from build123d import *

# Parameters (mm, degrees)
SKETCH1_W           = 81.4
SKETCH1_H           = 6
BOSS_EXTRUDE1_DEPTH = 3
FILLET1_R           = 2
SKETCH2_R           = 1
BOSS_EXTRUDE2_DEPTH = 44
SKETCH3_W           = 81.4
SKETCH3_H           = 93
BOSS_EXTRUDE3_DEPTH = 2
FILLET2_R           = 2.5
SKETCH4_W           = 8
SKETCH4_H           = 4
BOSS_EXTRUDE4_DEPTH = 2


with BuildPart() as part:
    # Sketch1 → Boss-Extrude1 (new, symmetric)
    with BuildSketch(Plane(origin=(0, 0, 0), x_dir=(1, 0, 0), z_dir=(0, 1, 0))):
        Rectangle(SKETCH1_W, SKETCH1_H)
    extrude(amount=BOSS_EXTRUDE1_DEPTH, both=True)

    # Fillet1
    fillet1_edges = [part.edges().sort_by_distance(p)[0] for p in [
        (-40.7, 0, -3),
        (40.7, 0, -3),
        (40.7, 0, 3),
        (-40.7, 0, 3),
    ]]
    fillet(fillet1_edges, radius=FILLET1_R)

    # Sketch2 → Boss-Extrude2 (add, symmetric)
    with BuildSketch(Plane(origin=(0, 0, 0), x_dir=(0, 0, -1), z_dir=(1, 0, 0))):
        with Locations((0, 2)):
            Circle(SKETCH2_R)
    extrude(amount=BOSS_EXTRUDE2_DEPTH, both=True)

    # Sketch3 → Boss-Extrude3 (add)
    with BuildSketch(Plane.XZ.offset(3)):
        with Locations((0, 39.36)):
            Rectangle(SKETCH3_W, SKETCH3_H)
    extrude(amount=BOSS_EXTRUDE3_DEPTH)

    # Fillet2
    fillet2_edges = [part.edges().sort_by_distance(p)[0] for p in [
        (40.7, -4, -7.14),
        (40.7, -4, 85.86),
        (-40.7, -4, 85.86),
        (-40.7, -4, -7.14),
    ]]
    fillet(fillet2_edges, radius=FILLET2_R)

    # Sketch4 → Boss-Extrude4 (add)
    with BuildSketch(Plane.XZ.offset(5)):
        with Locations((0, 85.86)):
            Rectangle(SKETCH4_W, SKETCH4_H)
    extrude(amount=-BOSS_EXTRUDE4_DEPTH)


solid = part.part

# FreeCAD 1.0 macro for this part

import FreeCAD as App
import Part
import Sketcher

V = App.Vector
Q = App.Units.Quantity


def edges_at(feature, points):
    """Names of the edges that pass closest to the given points."""
    edges = feature.Shape.Edges
    near = lambda p: min(range(len(edges)), key=lambda i: edges[i].distToShape(Part.Vertex(*p))[0])
    return sorted({f"Edge{near(p) + 1}" for p in points})


def add_polygon(sketch, points):
    """Adds a closed chain of lines whose ends are joined by coincident constraints."""
    first, n = sketch.GeometryCount, len(points)
    for a, b in zip(points, points[1:] + points[:1]):
        sketch.addGeometry(Part.LineSegment(App.Vector(*a, 0), App.Vector(*b, 0)), False)
    for i in range(n):
        sketch.addConstraint(Sketcher.Constraint("Coincident", first + i, 2, first + (i + 1) % n, 1))

doc = App.newDocument("Part")
body = doc.addObject("PartDesign::Body", "Body")

sketch1 = body.newObject("Sketcher::SketchObject", "Sketch")
sketch1.AttachmentSupport = (doc.getObject("XZ_Plane"), [""])
sketch1.MapMode = "FlatFace"
add_polygon(sketch1, [(-41, -3), (-41, 3), (41, 3), (41, -3)])
sketch1.addConstraint(Sketcher.Constraint("Vertical", 0))
sketch1.addConstraint(Sketcher.Constraint("Horizontal", 1))
sketch1.addConstraint(Sketcher.Constraint("Vertical", 2))
sketch1.addConstraint(Sketcher.Constraint("Horizontal", 3))
sketch1.addConstraint(Sketcher.Constraint("Symmetric", 0, 2, 2, 2, -1, 1))
sketch1.addConstraint(Sketcher.Constraint("DistanceY", 0, 1, 0, 2, Q("6 mm")))
sketch1.addConstraint(Sketcher.Constraint("DistanceX", 1, 1, 1, 2, Q("81.4 mm")))
pad1 = body.newObject("PartDesign::Pad", "Pad")
pad1.Profile = sketch1
pad1.Length = 6
pad1.Midplane = True
doc.recompute()

fillet = body.newObject("PartDesign::Fillet", "Fillet")
fillet.Base = (pad1, edges_at(pad1, [
    (-40.7, 0, -3),
    (40.7, 0, -3),
    (40.7, 0, 3),
    (-40.7, 0, 3),
]))
fillet.Radius = 2

sketch2 = body.newObject("Sketcher::SketchObject", "Sketch001")
sketch2.AttachmentSupport = (doc.getObject("YZ_Plane"), [""])
sketch2.MapMode = "FlatFace"
sketch2.addGeometry(Part.Circle(V(2, 0, 0), V(0, 0, 1), 1), False)
sketch2.addConstraint(Sketcher.Constraint("PointOnObject", 0, 3, -1))
sketch2.addConstraint(Sketcher.Constraint("Diameter", 0, Q("2 mm")))
sketch2.addConstraint(Sketcher.Constraint("DistanceX", -1, 1, 0, 3, Q("2 mm")))
pad2 = body.newObject("PartDesign::Pad", "Pad001")
pad2.Profile = sketch2
pad2.Length = 88
pad2.Midplane = True

sketch3 = body.newObject("Sketcher::SketchObject", "Sketch002")
sketch3.AttachmentSupport = (doc.getObject("XZ_Plane"), [""])
sketch3.MapMode = "FlatFace"
sketch3.AttachmentOffset = App.Placement(V(0, 0, 3), App.Rotation())
add_polygon(sketch3, [(-41, 86), (-41, -7), (41, -7), (41, 86)])
sketch3.addConstraint(Sketcher.Constraint("Vertical", 0))
sketch3.addConstraint(Sketcher.Constraint("Horizontal", 1))
sketch3.addConstraint(Sketcher.Constraint("Vertical", 2))
sketch3.addConstraint(Sketcher.Constraint("Horizontal", 3))
sketch3.addConstraint(Sketcher.Constraint("DistanceY", 0, 2, 0, 1, Q("93 mm")))
sketch3.addConstraint(Sketcher.Constraint("DistanceX", 1, 1, 1, 2, Q("81.4 mm")))
sketch3.addConstraint(Sketcher.Constraint("DistanceX", 0, 2, -1, 1, Q("40.7 mm")))
sketch3.addConstraint(Sketcher.Constraint("DistanceY", 0, 2, -1, 1, Q("7.14 mm")))
pad3 = body.newObject("PartDesign::Pad", "Pad002")
pad3.Profile = sketch3
pad3.Length = 2
doc.recompute()

fillet2 = body.newObject("PartDesign::Fillet", "Fillet001")
fillet2.Base = (pad3, edges_at(pad3, [
    (40.7, -4, -7.14),
    (40.7, -4, 85.86),
    (-40.7, -4, 85.86),
    (-40.7, -4, -7.14),
]))
fillet2.Radius = 2.5

sketch4 = body.newObject("Sketcher::SketchObject", "Sketch003")
sketch4.AttachmentSupport = (doc.getObject("XZ_Plane"), [""])
sketch4.MapMode = "FlatFace"
sketch4.AttachmentOffset = App.Placement(V(0, 0, 5), App.Rotation())
add_polygon(sketch4, [(-4, 87.9), (-4, 83.9), (4, 83.9), (4, 87.9)])
sketch4.addConstraint(Sketcher.Constraint("Vertical", 0))
sketch4.addConstraint(Sketcher.Constraint("Horizontal", 1))
sketch4.addConstraint(Sketcher.Constraint("Vertical", 2))
sketch4.addConstraint(Sketcher.Constraint("Horizontal", 3))
sketch4.addConstraint(Sketcher.Constraint("DistanceX", 1, 1, 1, 2, Q("8 mm")))
sketch4.addConstraint(Sketcher.Constraint("DistanceY", 0, 2, 0, 1, Q("4 mm")))
sketch4.addConstraint(Sketcher.Constraint("DistanceX", 0, 2, -1, 1, Q("4 mm")))
sketch4.addConstraint(Sketcher.Constraint("DistanceY", -1, 1, 0, 2, Q("83.86 mm")))
pad4 = body.newObject("PartDesign::Pad", "Pad003")
pad4.Profile = sketch4
pad4.Length = 2
pad4.Reversed = True

doc.recompute()
